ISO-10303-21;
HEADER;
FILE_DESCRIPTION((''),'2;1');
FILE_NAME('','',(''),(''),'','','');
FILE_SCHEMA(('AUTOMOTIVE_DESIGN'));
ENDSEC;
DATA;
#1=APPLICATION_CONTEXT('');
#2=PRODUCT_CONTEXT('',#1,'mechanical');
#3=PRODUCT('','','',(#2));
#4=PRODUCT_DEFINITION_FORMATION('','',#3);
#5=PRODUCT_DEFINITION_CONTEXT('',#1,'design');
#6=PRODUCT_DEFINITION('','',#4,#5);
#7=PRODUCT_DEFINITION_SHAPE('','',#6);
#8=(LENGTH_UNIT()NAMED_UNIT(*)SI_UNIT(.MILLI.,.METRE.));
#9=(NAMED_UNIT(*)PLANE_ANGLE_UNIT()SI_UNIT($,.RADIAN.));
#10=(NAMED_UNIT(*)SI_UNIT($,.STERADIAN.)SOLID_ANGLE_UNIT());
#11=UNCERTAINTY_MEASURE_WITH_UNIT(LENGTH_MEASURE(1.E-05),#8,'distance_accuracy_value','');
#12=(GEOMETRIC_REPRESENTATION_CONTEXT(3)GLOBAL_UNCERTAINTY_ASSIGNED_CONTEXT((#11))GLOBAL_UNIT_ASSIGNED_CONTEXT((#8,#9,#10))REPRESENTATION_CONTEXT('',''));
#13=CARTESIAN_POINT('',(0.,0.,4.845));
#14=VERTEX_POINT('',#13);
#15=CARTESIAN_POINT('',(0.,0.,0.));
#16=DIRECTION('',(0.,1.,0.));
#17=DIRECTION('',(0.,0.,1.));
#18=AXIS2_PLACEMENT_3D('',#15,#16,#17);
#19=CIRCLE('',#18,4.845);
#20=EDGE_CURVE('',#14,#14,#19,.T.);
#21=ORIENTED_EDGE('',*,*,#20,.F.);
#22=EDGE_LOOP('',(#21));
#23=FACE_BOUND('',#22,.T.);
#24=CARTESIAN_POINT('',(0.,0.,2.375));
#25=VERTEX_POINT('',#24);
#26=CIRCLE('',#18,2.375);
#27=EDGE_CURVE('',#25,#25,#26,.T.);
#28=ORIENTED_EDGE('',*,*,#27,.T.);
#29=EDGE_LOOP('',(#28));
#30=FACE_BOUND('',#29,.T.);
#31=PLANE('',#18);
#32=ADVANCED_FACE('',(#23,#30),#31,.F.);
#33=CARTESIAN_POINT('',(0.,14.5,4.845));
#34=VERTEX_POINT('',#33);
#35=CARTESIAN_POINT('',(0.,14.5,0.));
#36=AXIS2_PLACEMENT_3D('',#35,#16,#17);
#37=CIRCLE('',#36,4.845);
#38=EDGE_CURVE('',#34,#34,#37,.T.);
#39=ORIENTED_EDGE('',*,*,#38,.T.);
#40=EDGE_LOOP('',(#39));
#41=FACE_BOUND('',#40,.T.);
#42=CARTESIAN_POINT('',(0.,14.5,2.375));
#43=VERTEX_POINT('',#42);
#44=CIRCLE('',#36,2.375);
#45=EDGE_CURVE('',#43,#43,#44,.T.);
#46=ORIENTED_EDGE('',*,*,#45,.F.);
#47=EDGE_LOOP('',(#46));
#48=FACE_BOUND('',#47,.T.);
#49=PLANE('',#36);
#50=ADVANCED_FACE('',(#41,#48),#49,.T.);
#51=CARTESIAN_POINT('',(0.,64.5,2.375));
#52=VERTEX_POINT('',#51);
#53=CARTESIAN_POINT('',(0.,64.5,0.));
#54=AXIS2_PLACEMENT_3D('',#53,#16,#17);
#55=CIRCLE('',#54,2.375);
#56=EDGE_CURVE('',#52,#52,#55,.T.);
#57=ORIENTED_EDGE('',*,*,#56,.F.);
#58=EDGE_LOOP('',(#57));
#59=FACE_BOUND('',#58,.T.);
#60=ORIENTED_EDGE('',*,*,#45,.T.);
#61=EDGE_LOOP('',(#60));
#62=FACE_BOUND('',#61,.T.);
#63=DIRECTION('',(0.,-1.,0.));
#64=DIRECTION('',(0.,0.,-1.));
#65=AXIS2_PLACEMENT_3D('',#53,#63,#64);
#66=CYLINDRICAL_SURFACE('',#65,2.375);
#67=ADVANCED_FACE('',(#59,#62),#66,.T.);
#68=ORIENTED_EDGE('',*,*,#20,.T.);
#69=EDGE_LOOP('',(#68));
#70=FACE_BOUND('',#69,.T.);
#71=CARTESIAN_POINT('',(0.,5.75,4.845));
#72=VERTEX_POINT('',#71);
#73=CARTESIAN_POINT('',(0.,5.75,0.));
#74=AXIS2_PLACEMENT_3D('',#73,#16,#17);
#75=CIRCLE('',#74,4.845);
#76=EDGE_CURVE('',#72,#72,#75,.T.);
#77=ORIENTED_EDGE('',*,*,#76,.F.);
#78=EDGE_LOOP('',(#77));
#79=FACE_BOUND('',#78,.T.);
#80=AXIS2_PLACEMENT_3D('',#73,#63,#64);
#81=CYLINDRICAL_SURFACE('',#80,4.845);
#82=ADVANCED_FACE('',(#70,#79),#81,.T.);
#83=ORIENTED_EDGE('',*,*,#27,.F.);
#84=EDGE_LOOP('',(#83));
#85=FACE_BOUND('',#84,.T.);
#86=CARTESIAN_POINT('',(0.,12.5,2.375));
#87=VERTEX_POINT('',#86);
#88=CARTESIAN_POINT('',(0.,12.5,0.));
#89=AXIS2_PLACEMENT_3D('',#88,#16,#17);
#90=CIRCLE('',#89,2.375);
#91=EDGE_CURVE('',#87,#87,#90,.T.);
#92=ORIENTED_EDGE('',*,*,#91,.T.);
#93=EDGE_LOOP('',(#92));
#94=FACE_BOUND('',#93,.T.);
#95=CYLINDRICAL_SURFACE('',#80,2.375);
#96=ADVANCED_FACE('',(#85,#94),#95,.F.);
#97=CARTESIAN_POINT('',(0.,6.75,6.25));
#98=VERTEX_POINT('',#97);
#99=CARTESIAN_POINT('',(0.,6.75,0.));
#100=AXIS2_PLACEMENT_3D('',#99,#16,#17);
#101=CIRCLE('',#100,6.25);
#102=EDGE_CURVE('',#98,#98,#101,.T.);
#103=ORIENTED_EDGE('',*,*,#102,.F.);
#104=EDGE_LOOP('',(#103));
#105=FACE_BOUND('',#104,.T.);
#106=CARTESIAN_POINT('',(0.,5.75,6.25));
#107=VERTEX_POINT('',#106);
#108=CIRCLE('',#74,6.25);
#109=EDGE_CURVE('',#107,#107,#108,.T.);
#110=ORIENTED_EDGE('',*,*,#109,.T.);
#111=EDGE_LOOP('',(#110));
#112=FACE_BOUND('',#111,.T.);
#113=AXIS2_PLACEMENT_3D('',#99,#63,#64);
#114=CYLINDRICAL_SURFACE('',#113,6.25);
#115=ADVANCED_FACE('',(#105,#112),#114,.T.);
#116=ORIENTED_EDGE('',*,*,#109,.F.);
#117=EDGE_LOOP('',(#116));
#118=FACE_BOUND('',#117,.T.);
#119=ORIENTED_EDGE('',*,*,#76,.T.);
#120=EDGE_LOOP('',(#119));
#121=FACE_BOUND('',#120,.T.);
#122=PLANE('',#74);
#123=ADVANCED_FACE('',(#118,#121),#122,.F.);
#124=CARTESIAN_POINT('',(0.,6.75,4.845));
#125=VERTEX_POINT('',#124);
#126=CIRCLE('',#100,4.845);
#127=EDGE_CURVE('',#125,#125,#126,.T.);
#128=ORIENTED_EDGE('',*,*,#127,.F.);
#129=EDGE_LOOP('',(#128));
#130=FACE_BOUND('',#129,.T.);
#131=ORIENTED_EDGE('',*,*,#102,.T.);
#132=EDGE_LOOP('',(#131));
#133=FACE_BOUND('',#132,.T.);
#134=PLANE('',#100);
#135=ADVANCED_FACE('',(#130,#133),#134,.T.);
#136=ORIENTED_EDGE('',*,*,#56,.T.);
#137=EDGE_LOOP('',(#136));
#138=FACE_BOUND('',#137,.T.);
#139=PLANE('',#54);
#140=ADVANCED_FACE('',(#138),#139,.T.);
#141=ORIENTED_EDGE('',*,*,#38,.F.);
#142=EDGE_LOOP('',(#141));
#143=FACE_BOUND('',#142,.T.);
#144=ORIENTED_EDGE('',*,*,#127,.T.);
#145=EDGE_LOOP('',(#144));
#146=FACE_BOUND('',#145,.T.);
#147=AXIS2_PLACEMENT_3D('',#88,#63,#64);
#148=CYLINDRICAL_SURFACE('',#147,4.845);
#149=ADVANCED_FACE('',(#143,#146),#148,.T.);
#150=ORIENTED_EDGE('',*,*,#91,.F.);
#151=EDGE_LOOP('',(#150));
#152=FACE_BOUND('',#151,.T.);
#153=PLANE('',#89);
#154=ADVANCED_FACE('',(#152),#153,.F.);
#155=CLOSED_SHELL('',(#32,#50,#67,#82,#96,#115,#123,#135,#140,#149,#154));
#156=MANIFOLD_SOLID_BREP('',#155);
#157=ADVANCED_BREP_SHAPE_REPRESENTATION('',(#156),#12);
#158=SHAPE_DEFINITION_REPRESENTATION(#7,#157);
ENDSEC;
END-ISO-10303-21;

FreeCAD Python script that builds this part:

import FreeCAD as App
import Part
import Sketcher
from FreeCAD import Vector

doc = App.newDocument("Part")
body = doc.addObject("PartDesign::Body", "Body")

# Sketch on XZ plane
sketch1 = body.newObject("Sketcher::SketchObject", "Sketch")
sketch1.AttachmentSupport = (doc.getObject("XZ_Plane"), [""])
sketch1.MapMode = "FlatFace"
sketch1.addGeometry([
    Part.Circle(Vector(0, 0, 0), Vector(0, 0, 1), 4.8),
    Part.Circle(Vector(0, 0, 0), Vector(0, 0, 1), 2.4),
], False)
sketch1.addConstraint([
    Sketcher.Constraint("Coincident", 0, 3, -1, 1),
    Sketcher.Constraint("Coincident", 1, 3, -1, 1),
    Sketcher.Constraint("Diameter", 0, 9.69),
    Sketcher.Constraint("Diameter", 1, 4.75),
])
pad1 = body.newObject("PartDesign::Pad", "Pad")
pad1.Profile = sketch1
pad1.Length = 5.75
pad1.Reversed = True

# Sketch on XZ plane
sketch2 = body.newObject("Sketcher::SketchObject", "Sketch001")
sketch2.AttachmentSupport = (doc.getObject("XZ_Plane"), [""])
sketch2.MapMode = "FlatFace"
sketch2.AttachmentOffset = App.Placement(Vector(0, 0, -5.75), App.Rotation())
sketch2.addGeometry([
    Part.Circle(Vector(0, 0, 0), Vector(0, 0, 1), 6.2),
    Part.Circle(Vector(0, 0, 0), Vector(0, 0, 1), 2.4),
], False)
sketch2.addConstraint([
    Sketcher.Constraint("Coincident", 0, 3, -1, 1),
    Sketcher.Constraint("Coincident", 1, 3, -1, 1),
    Sketcher.Constraint("Diameter", 0, 12.5),
    Sketcher.Constraint("Diameter", 1, 4.75),
])
pad2 = body.newObject("PartDesign::Pad", "Pad001")
pad2.Profile = sketch2
pad2.Length = 1
pad2.Reversed = True

# Sketch on XZ plane
sketch3 = body.newObject("Sketcher::SketchObject", "Sketch002")
sketch3.AttachmentSupport = (doc.getObject("XZ_Plane"), [""])
sketch3.MapMode = "FlatFace"
sketch3.AttachmentOffset = App.Placement(Vector(0, 0, -6.75), App.Rotation())
sketch3.addGeometry([
    Part.Circle(Vector(0, 0, 0), Vector(0, 0, 1), 4.8),
    Part.Circle(Vector(0, 0, 0), Vector(0, 0, 1), 2.4),
], False)
sketch3.addConstraint([
    Sketcher.Constraint("Coincident", 0, 3, -1, 1),
    Sketcher.Constraint("Coincident", 1, 3, -1, 1),
    Sketcher.Constraint("Diameter", 0, 9.69),
    Sketcher.Constraint("Diameter", 1, 4.75),
])
pad3 = body.newObject("PartDesign::Pad", "Pad002")
pad3.Profile = sketch3
pad3.Length = 5.75
pad3.Reversed = True

# Sketch on XZ plane
sketch4 = body.newObject("Sketcher::SketchObject", "Sketch003")
sketch4.AttachmentSupport = (doc.getObject("XZ_Plane"), [""])
sketch4.MapMode = "FlatFace"
sketch4.AttachmentOffset = App.Placement(Vector(0, 0, -12.5), App.Rotation())
sketch4.addGeometry(Part.Circle(Vector(0, 0, 0), Vector(0, 0, 1), 4.8), False)
sketch4.addConstraint([
    Sketcher.Constraint("Coincident", 0, 3, -1, 1),
    Sketcher.Constraint("Diameter", 0, 9.69),
])
pad4 = body.newObject("PartDesign::Pad", "Pad003")
pad4.Profile = sketch4
pad4.Length = 2
pad4.Reversed = True

# Sketch on XZ plane
sketch5 = body.newObject("Sketcher::SketchObject", "Sketch004")
sketch5.AttachmentSupport = (doc.getObject("XZ_Plane"), [""])
sketch5.MapMode = "FlatFace"
sketch5.AttachmentOffset = App.Placement(Vector(0, 0, -14.5), App.Rotation())
sketch5.addGeometry(Part.Circle(Vector(0, 0, 0), Vector(0, 0, 1), 2.4), False)
sketch5.addConstraint([
    Sketcher.Constraint("Coincident", 0, 3, -1, 1),
    Sketcher.Constraint("Diameter", 0, 4.75),
])
pad5 = body.newObject("PartDesign::Pad", "Pad004")
pad5.Profile = sketch5
pad5.Length = 50
pad5.Reversed = True

doc.recompute()
